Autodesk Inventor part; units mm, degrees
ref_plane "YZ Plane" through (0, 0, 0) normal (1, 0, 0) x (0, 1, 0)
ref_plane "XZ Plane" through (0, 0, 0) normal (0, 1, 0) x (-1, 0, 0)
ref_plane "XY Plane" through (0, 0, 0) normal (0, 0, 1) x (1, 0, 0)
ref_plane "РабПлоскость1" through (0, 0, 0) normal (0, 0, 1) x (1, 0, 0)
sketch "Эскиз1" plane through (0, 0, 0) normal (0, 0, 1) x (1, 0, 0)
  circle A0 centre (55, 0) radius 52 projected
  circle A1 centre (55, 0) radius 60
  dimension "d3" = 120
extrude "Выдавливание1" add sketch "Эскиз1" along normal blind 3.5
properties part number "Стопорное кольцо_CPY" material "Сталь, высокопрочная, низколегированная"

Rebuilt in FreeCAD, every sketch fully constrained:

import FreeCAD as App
import Part
import Sketcher

doc = App.newDocument("Part")
body = doc.addObject("PartDesign::Body", "Body")

sketch1 = body.newObject("Sketcher::SketchObject", "Sketch")
sketch1.AttachmentSupport = (doc.getObject("XY_Plane"), [""])
sketch1.MapMode = "FlatFace"
sketch1.addGeometry([
    Part.Circle(App.Vector(55, 0, 0), App.Vector(0, 0, 1), 60),
    Part.Circle(App.Vector(55, 0, 0), App.Vector(0, 0, 1), 52),
], False)
sketch1.addConstraint([
    Sketcher.Constraint("Coincident", 1, 3, 0, 3),
    Sketcher.Constraint("PointOnObject", 0, 3, -1),
    Sketcher.Constraint("Diameter", 0, 120.0),
    Sketcher.Constraint("Diameter", 1, 104.0),
    Sketcher.Constraint("DistanceX", -1, 1, 0, 3, 55.0),
])
pad1 = body.newObject("PartDesign::Pad", "Pad")
pad1.Profile = sketch1
pad1.Length = 3.5

doc.recompute()
